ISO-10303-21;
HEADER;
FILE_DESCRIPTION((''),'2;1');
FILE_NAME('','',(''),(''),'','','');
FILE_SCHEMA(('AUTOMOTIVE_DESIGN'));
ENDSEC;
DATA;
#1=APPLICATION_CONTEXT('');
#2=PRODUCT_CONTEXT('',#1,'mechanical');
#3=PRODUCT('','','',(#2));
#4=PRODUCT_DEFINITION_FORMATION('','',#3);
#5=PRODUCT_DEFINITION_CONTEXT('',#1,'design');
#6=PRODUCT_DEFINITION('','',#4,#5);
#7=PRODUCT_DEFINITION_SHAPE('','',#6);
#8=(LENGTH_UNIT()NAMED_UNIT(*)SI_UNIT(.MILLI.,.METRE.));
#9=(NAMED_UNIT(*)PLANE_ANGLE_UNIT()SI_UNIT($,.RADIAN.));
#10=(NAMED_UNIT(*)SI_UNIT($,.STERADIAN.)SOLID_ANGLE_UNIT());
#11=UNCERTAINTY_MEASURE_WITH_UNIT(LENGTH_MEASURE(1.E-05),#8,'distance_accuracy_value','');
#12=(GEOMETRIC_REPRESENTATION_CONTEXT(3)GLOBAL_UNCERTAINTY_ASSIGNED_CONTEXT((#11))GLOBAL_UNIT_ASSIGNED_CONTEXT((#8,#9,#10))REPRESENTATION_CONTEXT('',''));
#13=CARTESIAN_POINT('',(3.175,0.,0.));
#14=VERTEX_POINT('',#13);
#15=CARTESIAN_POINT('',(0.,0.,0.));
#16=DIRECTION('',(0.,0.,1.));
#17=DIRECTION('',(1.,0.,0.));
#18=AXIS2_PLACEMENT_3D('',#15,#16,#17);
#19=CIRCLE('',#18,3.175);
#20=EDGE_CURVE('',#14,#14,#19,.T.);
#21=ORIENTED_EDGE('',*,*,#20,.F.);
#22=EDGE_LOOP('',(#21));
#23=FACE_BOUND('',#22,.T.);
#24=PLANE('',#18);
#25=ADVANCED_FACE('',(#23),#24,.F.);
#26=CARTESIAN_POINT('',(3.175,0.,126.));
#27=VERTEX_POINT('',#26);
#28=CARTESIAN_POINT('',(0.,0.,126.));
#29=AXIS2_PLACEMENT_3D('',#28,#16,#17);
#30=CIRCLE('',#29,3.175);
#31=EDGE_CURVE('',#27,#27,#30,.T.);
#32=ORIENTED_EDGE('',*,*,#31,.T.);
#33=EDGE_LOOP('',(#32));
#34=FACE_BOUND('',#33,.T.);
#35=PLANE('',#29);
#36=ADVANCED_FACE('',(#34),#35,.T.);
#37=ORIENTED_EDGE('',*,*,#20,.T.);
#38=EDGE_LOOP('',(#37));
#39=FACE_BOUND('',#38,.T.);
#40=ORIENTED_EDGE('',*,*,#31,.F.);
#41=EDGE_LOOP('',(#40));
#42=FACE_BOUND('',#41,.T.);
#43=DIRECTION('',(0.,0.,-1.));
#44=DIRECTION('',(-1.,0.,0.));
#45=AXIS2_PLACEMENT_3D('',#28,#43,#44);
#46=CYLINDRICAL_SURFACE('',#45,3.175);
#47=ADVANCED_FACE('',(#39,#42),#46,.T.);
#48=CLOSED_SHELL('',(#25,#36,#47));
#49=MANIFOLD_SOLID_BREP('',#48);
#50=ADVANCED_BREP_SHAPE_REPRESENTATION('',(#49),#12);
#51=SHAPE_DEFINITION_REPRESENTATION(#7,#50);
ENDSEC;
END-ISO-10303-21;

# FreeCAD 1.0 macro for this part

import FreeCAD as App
import Part
import Sketcher
from FreeCAD import Vector

doc = App.newDocument("Part")
body = doc.addObject("PartDesign::Body", "Body")

sketch1 = body.newObject("Sketcher::SketchObject", "Sketch")
sketch1.AttachmentSupport = (doc.getObject("XY_Plane"), [""])
sketch1.MapMode = "FlatFace"
sketch1.addGeometry(Part.Circle(Vector(0, 0, 0), Vector(0, 0, 1), 3.2), False)
sketch1.addConstraint([
    Sketcher.Constraint("Coincident", 0, 3, -1, 1),
    Sketcher.Constraint("Diameter", 0, 6.35),
])
pad1 = body.newObject("PartDesign::Pad", "Pad")
pad1.Profile = sketch1
pad1.Length = 126

doc.recompute()
